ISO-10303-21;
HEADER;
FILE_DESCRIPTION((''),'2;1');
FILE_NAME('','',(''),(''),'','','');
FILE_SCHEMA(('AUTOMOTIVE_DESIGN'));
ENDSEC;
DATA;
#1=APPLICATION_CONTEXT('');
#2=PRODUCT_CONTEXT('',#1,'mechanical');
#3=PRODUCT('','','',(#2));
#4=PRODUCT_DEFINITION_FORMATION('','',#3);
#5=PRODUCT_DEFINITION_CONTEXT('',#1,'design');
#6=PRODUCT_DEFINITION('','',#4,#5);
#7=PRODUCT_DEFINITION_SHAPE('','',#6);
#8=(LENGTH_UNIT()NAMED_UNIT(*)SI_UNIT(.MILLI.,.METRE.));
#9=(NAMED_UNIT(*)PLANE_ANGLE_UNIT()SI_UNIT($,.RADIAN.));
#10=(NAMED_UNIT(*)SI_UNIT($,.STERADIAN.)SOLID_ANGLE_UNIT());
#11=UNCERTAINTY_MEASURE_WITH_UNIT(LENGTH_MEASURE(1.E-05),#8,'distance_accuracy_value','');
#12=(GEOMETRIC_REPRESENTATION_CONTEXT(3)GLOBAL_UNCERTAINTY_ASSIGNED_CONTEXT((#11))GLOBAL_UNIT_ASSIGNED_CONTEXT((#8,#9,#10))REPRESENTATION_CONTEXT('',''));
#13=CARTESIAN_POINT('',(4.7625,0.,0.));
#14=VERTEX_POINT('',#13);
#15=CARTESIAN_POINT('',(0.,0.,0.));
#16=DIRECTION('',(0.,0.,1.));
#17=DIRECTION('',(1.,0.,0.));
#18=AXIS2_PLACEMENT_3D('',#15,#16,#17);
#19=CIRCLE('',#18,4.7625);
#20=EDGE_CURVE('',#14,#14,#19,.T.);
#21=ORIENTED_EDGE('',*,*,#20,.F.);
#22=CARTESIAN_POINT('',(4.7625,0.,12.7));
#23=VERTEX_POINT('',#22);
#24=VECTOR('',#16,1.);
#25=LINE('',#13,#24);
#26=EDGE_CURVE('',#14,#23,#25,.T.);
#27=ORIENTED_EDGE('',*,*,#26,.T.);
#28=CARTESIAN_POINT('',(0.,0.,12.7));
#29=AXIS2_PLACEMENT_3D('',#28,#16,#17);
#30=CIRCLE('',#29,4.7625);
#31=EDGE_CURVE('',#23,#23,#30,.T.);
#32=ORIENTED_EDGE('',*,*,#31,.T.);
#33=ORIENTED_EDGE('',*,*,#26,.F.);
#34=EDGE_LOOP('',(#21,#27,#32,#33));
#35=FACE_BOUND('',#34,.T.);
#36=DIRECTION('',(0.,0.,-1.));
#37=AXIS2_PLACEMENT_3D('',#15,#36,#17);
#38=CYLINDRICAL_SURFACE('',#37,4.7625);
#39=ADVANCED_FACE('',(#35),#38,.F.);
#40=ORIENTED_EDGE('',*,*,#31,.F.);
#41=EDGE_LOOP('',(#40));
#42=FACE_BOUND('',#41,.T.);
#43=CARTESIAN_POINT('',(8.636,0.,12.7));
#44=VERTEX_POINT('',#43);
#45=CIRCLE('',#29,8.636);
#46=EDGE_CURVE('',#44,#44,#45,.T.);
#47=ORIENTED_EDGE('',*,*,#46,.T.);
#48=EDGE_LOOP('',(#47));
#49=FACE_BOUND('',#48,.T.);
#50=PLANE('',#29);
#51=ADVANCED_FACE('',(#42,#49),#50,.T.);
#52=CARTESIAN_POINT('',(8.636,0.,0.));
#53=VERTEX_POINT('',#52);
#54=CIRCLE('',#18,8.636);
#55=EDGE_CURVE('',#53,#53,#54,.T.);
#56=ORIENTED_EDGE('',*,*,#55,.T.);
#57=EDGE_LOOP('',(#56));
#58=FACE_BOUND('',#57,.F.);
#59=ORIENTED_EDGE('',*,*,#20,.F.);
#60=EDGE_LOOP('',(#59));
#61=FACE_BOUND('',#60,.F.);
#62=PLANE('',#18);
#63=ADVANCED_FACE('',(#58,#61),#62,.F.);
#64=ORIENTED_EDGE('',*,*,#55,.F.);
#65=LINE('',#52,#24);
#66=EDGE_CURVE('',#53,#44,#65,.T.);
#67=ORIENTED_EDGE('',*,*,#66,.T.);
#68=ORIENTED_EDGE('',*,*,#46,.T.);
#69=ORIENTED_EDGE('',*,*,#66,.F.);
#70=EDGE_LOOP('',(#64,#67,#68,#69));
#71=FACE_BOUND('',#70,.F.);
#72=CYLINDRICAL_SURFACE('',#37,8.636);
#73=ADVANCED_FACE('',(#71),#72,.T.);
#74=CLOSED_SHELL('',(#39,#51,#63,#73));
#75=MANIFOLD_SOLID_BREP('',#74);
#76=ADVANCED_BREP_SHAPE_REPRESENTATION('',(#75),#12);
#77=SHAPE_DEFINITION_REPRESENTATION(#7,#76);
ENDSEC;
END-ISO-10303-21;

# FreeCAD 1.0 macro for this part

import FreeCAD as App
import Part
import Sketcher
from FreeCAD import Vector
Q = App.Units.Quantity

doc = App.newDocument("Part")
body = doc.addObject("PartDesign::Body", "Body")

# Sketch on XY plane
sketch1 = body.newObject("Sketcher::SketchObject", "Sketch")
sketch1.AttachmentSupport = (doc.getObject("XY_Plane"), [""])
sketch1.MapMode = "FlatFace"
sketch1.addGeometry(Part.Circle(Vector(0, 0, 0), Vector(0, 0, 1), 8.636), False)
sketch1.addGeometry(Part.Circle(Vector(0, 0, 0), Vector(0, 0, 1), 4.7625), False)
sketch1.addConstraint(Sketcher.Constraint("Coincident", 0, 3, -1, 1))
sketch1.addConstraint(Sketcher.Constraint("Coincident", 1, 3, -1, 1))
sketch1.addConstraint(Sketcher.Constraint("Diameter", 0, Q("0.68 in")))
sketch1.addConstraint(Sketcher.Constraint("Diameter", 1, Q("0.375 in")))
pad1 = body.newObject("PartDesign::Pad", "Pad")
pad1.Profile = sketch1
pad1.Length = Q("0.5 in")

doc.recompute()
